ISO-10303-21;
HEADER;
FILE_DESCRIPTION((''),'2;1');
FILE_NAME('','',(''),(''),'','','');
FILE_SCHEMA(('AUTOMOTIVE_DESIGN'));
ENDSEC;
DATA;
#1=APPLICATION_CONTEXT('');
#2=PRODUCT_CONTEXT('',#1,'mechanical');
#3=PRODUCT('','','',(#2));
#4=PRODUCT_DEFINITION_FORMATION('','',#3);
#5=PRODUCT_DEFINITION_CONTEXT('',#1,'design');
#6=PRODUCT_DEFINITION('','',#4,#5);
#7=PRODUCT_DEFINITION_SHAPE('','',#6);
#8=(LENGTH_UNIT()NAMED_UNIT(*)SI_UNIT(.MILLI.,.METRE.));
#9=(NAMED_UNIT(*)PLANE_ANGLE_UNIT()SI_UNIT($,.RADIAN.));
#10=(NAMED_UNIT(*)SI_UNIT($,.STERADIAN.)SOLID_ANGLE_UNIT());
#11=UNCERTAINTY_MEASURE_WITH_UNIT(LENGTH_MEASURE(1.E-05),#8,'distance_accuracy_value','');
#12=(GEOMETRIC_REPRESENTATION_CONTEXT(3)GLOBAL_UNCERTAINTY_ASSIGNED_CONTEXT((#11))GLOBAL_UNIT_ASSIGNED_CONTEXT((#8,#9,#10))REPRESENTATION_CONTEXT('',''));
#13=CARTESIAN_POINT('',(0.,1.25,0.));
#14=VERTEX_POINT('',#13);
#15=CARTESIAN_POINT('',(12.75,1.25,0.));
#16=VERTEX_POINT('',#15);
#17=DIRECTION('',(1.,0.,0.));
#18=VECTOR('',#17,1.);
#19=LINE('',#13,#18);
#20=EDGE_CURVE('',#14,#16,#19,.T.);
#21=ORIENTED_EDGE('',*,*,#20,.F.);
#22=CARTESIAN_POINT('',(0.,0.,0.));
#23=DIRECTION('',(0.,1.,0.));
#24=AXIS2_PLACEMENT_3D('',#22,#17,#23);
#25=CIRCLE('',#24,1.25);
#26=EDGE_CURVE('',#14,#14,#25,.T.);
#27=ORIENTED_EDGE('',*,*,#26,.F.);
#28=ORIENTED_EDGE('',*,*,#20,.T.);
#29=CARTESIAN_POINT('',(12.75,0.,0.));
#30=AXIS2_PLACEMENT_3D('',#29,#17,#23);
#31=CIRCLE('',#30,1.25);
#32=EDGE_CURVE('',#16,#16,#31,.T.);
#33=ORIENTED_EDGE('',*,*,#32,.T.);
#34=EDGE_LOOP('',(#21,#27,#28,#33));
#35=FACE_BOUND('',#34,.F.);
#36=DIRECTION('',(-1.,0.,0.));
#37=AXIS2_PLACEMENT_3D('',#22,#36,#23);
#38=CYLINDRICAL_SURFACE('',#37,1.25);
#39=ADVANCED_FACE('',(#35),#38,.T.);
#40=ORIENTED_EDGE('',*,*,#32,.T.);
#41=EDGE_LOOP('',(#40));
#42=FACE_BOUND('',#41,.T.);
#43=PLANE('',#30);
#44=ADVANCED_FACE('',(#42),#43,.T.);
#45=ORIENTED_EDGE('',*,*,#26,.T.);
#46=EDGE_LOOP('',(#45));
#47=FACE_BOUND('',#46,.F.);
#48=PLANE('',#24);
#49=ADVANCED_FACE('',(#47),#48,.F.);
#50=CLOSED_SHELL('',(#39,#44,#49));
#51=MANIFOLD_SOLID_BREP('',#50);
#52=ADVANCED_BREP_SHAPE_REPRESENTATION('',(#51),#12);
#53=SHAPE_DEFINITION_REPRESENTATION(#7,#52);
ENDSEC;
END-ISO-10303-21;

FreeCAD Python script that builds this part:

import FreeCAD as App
import Part
import Sketcher
from FreeCAD import Vector

doc = App.newDocument("Part")
body = doc.addObject("PartDesign::Body", "Body")

# Sketch on YZ plane
sketch1 = doc.addObject("Sketcher::SketchObject", "Sketch")
body.addObject(sketch1)
sketch1.AttachmentSupport = (doc.YZ_Plane, [""])
sketch1.MapMode = "FlatFace"
sketch1.addGeometry(Part.Circle(Vector(0, 0, 0), Vector(0, 0, 1), 1.25), False)
sketch1.addConstraint([
    Sketcher.Constraint("Coincident", 0, 3, -1, 1),
    Sketcher.Constraint("Diameter", 0, 2.5),
])
pad1 = doc.addObject("PartDesign::Pad", "Pad")
body.addObject(pad1)
pad1.Profile = sketch1
pad1.Length = 12.75

doc.recompute()
